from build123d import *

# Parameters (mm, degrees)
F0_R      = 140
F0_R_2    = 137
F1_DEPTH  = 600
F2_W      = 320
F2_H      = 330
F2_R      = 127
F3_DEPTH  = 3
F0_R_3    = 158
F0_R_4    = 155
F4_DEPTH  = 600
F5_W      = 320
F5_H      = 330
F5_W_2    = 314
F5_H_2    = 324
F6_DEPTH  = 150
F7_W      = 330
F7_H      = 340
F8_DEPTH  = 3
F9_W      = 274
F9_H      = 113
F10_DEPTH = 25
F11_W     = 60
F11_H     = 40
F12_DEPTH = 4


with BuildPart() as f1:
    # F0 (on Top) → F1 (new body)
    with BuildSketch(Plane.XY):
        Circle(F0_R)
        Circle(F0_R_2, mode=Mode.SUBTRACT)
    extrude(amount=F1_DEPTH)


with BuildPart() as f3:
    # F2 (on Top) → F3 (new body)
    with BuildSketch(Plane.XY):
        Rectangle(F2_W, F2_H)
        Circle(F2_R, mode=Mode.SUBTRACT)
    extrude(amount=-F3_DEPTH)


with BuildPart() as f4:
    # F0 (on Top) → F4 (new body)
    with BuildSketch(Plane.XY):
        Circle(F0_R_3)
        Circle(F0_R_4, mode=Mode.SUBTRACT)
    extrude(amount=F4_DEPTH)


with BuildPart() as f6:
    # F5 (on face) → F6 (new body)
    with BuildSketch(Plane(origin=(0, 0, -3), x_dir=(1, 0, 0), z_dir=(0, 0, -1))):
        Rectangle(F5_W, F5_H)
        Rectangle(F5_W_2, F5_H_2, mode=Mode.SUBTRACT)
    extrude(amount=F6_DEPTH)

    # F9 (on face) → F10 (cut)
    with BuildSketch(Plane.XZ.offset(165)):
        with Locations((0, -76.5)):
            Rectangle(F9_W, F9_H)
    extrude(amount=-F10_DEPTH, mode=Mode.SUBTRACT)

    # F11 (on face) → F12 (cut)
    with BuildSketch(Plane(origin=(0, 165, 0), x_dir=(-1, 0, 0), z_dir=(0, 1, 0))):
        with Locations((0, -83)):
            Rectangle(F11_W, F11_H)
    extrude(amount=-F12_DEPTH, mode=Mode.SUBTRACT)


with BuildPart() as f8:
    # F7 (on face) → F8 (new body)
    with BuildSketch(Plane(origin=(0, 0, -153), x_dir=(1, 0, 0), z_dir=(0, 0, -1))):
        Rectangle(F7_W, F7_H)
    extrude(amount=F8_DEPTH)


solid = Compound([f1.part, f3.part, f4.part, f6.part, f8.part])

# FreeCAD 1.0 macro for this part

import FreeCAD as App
import Part
import Sketcher

V = App.Vector
Q = App.Units.Quantity

doc = App.newDocument("Part")
body = doc.addObject("PartDesign::Body", "Body")

# Sketch on XY plane
sketch1 = body.newObject("Sketcher::SketchObject", "Sketch")
sketch1.AttachmentSupport = (doc.getObject("XY_Plane"), [""])
sketch1.MapMode = "FlatFace"
sketch1.addGeometry(Part.Circle(V(0, 0, 0), V(0, 0, 1), 140), False)
sketch1.addGeometry(Part.Circle(V(0, 0, 0), V(0, 0, 1), 137), False)
sketch1.addConstraint(Sketcher.Constraint("Coincident", 0, 3, -1, 1))
sketch1.addConstraint(Sketcher.Constraint("Coincident", 1, 3, -1, 1))
sketch1.addConstraint(Sketcher.Constraint("Diameter", 0, Q("280 mm")))
sketch1.addConstraint(Sketcher.Constraint("Diameter", 1, Q("274 mm")))
pad1 = body.newObject("PartDesign::Pad", "Pad")
pad1.Profile = sketch1
pad1.Length = 600
body2 = doc.addObject("PartDesign::Body", "Body001")

# Sketch on XY plane
sketch2 = body2.newObject("Sketcher::SketchObject", "Sketch001")
sketch2.AttachmentSupport = (doc.getObject("XY_Plane001"), [""])
sketch2.MapMode = "FlatFace"
sketch2.addGeometry(Part.LineSegment(V(-160, 165, 0), V(-160, -165, 0)), False)
sketch2.addGeometry(Part.LineSegment(V(-160, -165, 0), V(160, -165, 0)), False)
sketch2.addGeometry(Part.LineSegment(V(160, -165, 0), V(160, 165, 0)), False)
sketch2.addGeometry(Part.LineSegment(V(160, 165, 0), V(-160, 165, 0)), False)
sketch2.addGeometry(Part.Circle(V(0, 0, 0), V(0, 0, 1), 127), False)
sketch2.addConstraint(Sketcher.Constraint("Coincident", 0, 2, 1, 1))
sketch2.addConstraint(Sketcher.Constraint("Coincident", 1, 2, 2, 1))
sketch2.addConstraint(Sketcher.Constraint("Coincident", 2, 2, 3, 1))
sketch2.addConstraint(Sketcher.Constraint("Coincident", 3, 2, 0, 1))
sketch2.addConstraint(Sketcher.Constraint("Vertical", 0))
sketch2.addConstraint(Sketcher.Constraint("Horizontal", 1))
sketch2.addConstraint(Sketcher.Constraint("Vertical", 2))
sketch2.addConstraint(Sketcher.Constraint("Horizontal", 3))
sketch2.addConstraint(Sketcher.Constraint("Coincident", 4, 3, -1, 1))
sketch2.addConstraint(Sketcher.Constraint("Symmetric", 0, 2, 2, 2, -1, 1))
sketch2.addConstraint(Sketcher.Constraint("Diameter", 4, Q("254 mm")))
sketch2.addConstraint(Sketcher.Constraint("DistanceX", 1, 1, 1, 2, Q("320 mm")))
sketch2.addConstraint(Sketcher.Constraint("DistanceY", 0, 2, 0, 1, Q("330 mm")))
pad2 = body2.newObject("PartDesign::Pad", "Pad001")
pad2.Profile = sketch2
pad2.Length = 3
pad2.Reversed = True
body3 = doc.addObject("PartDesign::Body", "Body002")

# Sketch on XY plane
sketch3 = body3.newObject("Sketcher::SketchObject", "Sketch002")
sketch3.AttachmentSupport = (doc.getObject("XY_Plane002"), [""])
sketch3.MapMode = "FlatFace"
sketch3.addGeometry(Part.Circle(V(0, 0, 0), V(0, 0, 1), 158), False)
sketch3.addGeometry(Part.Circle(V(0, 0, 0), V(0, 0, 1), 155), False)
sketch3.addConstraint(Sketcher.Constraint("Coincident", 0, 3, -1, 1))
sketch3.addConstraint(Sketcher.Constraint("Coincident", 1, 3, -1, 1))
sketch3.addConstraint(Sketcher.Constraint("Diameter", 0, Q("316 mm")))
sketch3.addConstraint(Sketcher.Constraint("Diameter", 1, Q("310 mm")))
pad3 = body3.newObject("PartDesign::Pad", "Pad002")
pad3.Profile = sketch3
pad3.Length = 600
body4 = doc.addObject("PartDesign::Body", "Body003")

# Sketch on XY plane
sketch4 = body4.newObject("Sketcher::SketchObject", "Sketch003")
sketch4.AttachmentSupport = (doc.getObject("XY_Plane003"), [""])
sketch4.MapMode = "FlatFace"
sketch4.AttachmentOffset = App.Placement(V(0, 0, -3), App.Rotation())
sketch4.addGeometry(Part.LineSegment(V(-160, -165, 0), V(-160, 165, 0)), False)
sketch4.addGeometry(Part.LineSegment(V(-160, 165, 0), V(160, 165, 0)), False)
sketch4.addGeometry(Part.LineSegment(V(160, 165, 0), V(160, -165, 0)), False)
sketch4.addGeometry(Part.LineSegment(V(160, -165, 0), V(-160, -165, 0)), False)
sketch4.addGeometry(Part.LineSegment(V(157, 162, 0), V(-157, 162, 0)), False)
sketch4.addGeometry(Part.LineSegment(V(-157, 162, 0), V(-157, -162, 0)), False)
sketch4.addGeometry(Part.LineSegment(V(-157, -162, 0), V(157, -162, 0)), False)
sketch4.addGeometry(Part.LineSegment(V(157, -162, 0), V(157, 162, 0)), False)
sketch4.addConstraint(Sketcher.Constraint("Coincident", 0, 2, 1, 1))
sketch4.addConstraint(Sketcher.Constraint("Coincident", 1, 2, 2, 1))
sketch4.addConstraint(Sketcher.Constraint("Coincident", 2, 2, 3, 1))
sketch4.addConstraint(Sketcher.Constraint("Coincident", 3, 2, 0, 1))
sketch4.addConstraint(Sketcher.Constraint("Coincident", 4, 2, 5, 1))
sketch4.addConstraint(Sketcher.Constraint("Coincident", 5, 2, 6, 1))
sketch4.addConstraint(Sketcher.Constraint("Coincident", 6, 2, 7, 1))
sketch4.addConstraint(Sketcher.Constraint("Coincident", 7, 2, 4, 1))
sketch4.addConstraint(Sketcher.Constraint("Vertical", 0))
sketch4.addConstraint(Sketcher.Constraint("Horizontal", 1))
sketch4.addConstraint(Sketcher.Constraint("Vertical", 2))
sketch4.addConstraint(Sketcher.Constraint("Horizontal", 3))
sketch4.addConstraint(Sketcher.Constraint("Horizontal", 4))
sketch4.addConstraint(Sketcher.Constraint("Vertical", 5))
sketch4.addConstraint(Sketcher.Constraint("Horizontal", 6))
sketch4.addConstraint(Sketcher.Constraint("Vertical", 7))
sketch4.addConstraint(Sketcher.Constraint("Symmetric", 0, 2, 2, 2, -1, 1))
sketch4.addConstraint(Sketcher.Constraint("Symmetric", 4, 2, 6, 2, -1, 1))
sketch4.addConstraint(Sketcher.Constraint("DistanceX", 1, 1, 1, 2, Q("320 mm")))
sketch4.addConstraint(Sketcher.Constraint("DistanceX", 4, 2, 4, 1, Q("314 mm")))
sketch4.addConstraint(Sketcher.Constraint("DistanceY", 0, 1, 0, 2, Q("330 mm")))
sketch4.addConstraint(Sketcher.Constraint("DistanceY", 5, 2, 5, 1, Q("324 mm")))
pad4 = body4.newObject("PartDesign::Pad", "Pad003")
pad4.Profile = sketch4
pad4.Length = 150
pad4.Reversed = True

# Sketch on XZ plane
sketch5 = body4.newObject("Sketcher::SketchObject", "Sketch004")
sketch5.AttachmentSupport = (doc.getObject("XZ_Plane003"), [""])
sketch5.MapMode = "FlatFace"
sketch5.AttachmentOffset = App.Placement(V(0, 0, 165), App.Rotation())
sketch5.addGeometry(Part.LineSegment(V(-137, -20, 0), V(-137, -133, 0)), False)
sketch5.addGeometry(Part.LineSegment(V(-137, -133, 0), V(137, -133, 0)), False)
sketch5.addGeometry(Part.LineSegment(V(137, -133, 0), V(137, -20, 0)), False)
sketch5.addGeometry(Part.LineSegment(V(137, -20, 0), V(-137, -20, 0)), False)
sketch5.addConstraint(Sketcher.Constraint("Coincident", 0, 2, 1, 1))
sketch5.addConstraint(Sketcher.Constraint("Coincident", 1, 2, 2, 1))
sketch5.addConstraint(Sketcher.Constraint("Coincident", 2, 2, 3, 1))
sketch5.addConstraint(Sketcher.Constraint("Coincident", 3, 2, 0, 1))
sketch5.addConstraint(Sketcher.Constraint("Vertical", 0))
sketch5.addConstraint(Sketcher.Constraint("Horizontal", 1))
sketch5.addConstraint(Sketcher.Constraint("Vertical", 2))
sketch5.addConstraint(Sketcher.Constraint("Horizontal", 3))
sketch5.addConstraint(Sketcher.Constraint("DistanceX", 1, 1, 1, 2, Q("274 mm")))
sketch5.addConstraint(Sketcher.Constraint("DistanceY", 0, 2, 0, 1, Q("113 mm")))
sketch5.addConstraint(Sketcher.Constraint("DistanceX", 0, 2, -1, 1, Q("137 mm")))
sketch5.addConstraint(Sketcher.Constraint("DistanceY", 0, 2, -1, 1, Q("133 mm")))
pocket1 = body4.newObject("PartDesign::Pocket", "Pocket")
pocket1.Profile = sketch5
pocket1.Length = 25

# Sketch on XZ plane
sketch6 = body4.newObject("Sketcher::SketchObject", "Sketch005")
sketch6.AttachmentSupport = (doc.getObject("XZ_Plane003"), [""])
sketch6.MapMode = "FlatFace"
sketch6.AttachmentOffset = App.Placement(V(0, 0, -165), App.Rotation())
sketch6.addGeometry(Part.LineSegment(V(30, -63, 0), V(30, -103, 0)), False)
sketch6.addGeometry(Part.LineSegment(V(30, -103, 0), V(-30, -103, 0)), False)
sketch6.addGeometry(Part.LineSegment(V(-30, -103, 0), V(-30, -63, 0)), False)
sketch6.addGeometry(Part.LineSegment(V(-30, -63, 0), V(30, -63, 0)), False)
sketch6.addConstraint(Sketcher.Constraint("Coincident", 0, 2, 1, 1))
sketch6.addConstraint(Sketcher.Constraint("Coincident", 1, 2, 2, 1))
sketch6.addConstraint(Sketcher.Constraint("Coincident", 2, 2, 3, 1))
sketch6.addConstraint(Sketcher.Constraint("Coincident", 3, 2, 0, 1))
sketch6.addConstraint(Sketcher.Constraint("Vertical", 0))
sketch6.addConstraint(Sketcher.Constraint("Horizontal", 1))
sketch6.addConstraint(Sketcher.Constraint("Vertical", 2))
sketch6.addConstraint(Sketcher.Constraint("Horizontal", 3))
sketch6.addConstraint(Sketcher.Constraint("DistanceX", 1, 2, 1, 1, Q("60 mm")))
sketch6.addConstraint(Sketcher.Constraint("DistanceY", 0, 2, 0, 1, Q("40 mm")))
sketch6.addConstraint(Sketcher.Constraint("DistanceX", -1, 1, 0, 2, Q("30 mm")))
sketch6.addConstraint(Sketcher.Constraint("DistanceY", 0, 2, -1, 1, Q("103 mm")))
pocket2 = body4.newObject("PartDesign::Pocket", "Pocket001")
pocket2.Profile = sketch6
pocket2.Length = 4
pocket2.Reversed = True
body5 = doc.addObject("PartDesign::Body", "Body004")

# Sketch on XY plane
sketch7 = body5.newObject("Sketcher::SketchObject", "Sketch006")
sketch7.AttachmentSupport = (doc.getObject("XY_Plane004"), [""])
sketch7.MapMode = "FlatFace"
sketch7.AttachmentOffset = App.Placement(V(0, 0, -153), App.Rotation())
sketch7.addGeometry(Part.LineSegment(V(-165, -170, 0), V(-165, 170, 0)), False)
sketch7.addGeometry(Part.LineSegment(V(-165, 170, 0), V(165, 170, 0)), False)
sketch7.addGeometry(Part.LineSegment(V(165, 170, 0), V(165, -170, 0)), False)
sketch7.addGeometry(Part.LineSegment(V(165, -170, 0), V(-165, -170, 0)), False)
sketch7.addConstraint(Sketcher.Constraint("Coincident", 0, 2, 1, 1))
sketch7.addConstraint(Sketcher.Constraint("Coincident", 1, 2, 2, 1))
sketch7.addConstraint(Sketcher.Constraint("Coincident", 2, 2, 3, 1))
sketch7.addConstraint(Sketcher.Constraint("Coincident", 3, 2, 0, 1))
sketch7.addConstraint(Sketcher.Constraint("Vertical", 0))
sketch7.addConstraint(Sketcher.Constraint("Horizontal", 1))
sketch7.addConstraint(Sketcher.Constraint("Vertical", 2))
sketch7.addConstraint(Sketcher.Constraint("Horizontal", 3))
sketch7.addConstraint(Sketcher.Constraint("Symmetric", 0, 2, 2, 2, -1, 1))
sketch7.addConstraint(Sketcher.Constraint("DistanceX", 1, 1, 1, 2, Q("330 mm")))
sketch7.addConstraint(Sketcher.Constraint("DistanceY", 0, 1, 0, 2, Q("340 mm")))
pad5 = body5.newObject("PartDesign::Pad", "Pad004")
pad5.Profile = sketch7
pad5.Length = 3
pad5.Reversed = True

doc.recompute()
